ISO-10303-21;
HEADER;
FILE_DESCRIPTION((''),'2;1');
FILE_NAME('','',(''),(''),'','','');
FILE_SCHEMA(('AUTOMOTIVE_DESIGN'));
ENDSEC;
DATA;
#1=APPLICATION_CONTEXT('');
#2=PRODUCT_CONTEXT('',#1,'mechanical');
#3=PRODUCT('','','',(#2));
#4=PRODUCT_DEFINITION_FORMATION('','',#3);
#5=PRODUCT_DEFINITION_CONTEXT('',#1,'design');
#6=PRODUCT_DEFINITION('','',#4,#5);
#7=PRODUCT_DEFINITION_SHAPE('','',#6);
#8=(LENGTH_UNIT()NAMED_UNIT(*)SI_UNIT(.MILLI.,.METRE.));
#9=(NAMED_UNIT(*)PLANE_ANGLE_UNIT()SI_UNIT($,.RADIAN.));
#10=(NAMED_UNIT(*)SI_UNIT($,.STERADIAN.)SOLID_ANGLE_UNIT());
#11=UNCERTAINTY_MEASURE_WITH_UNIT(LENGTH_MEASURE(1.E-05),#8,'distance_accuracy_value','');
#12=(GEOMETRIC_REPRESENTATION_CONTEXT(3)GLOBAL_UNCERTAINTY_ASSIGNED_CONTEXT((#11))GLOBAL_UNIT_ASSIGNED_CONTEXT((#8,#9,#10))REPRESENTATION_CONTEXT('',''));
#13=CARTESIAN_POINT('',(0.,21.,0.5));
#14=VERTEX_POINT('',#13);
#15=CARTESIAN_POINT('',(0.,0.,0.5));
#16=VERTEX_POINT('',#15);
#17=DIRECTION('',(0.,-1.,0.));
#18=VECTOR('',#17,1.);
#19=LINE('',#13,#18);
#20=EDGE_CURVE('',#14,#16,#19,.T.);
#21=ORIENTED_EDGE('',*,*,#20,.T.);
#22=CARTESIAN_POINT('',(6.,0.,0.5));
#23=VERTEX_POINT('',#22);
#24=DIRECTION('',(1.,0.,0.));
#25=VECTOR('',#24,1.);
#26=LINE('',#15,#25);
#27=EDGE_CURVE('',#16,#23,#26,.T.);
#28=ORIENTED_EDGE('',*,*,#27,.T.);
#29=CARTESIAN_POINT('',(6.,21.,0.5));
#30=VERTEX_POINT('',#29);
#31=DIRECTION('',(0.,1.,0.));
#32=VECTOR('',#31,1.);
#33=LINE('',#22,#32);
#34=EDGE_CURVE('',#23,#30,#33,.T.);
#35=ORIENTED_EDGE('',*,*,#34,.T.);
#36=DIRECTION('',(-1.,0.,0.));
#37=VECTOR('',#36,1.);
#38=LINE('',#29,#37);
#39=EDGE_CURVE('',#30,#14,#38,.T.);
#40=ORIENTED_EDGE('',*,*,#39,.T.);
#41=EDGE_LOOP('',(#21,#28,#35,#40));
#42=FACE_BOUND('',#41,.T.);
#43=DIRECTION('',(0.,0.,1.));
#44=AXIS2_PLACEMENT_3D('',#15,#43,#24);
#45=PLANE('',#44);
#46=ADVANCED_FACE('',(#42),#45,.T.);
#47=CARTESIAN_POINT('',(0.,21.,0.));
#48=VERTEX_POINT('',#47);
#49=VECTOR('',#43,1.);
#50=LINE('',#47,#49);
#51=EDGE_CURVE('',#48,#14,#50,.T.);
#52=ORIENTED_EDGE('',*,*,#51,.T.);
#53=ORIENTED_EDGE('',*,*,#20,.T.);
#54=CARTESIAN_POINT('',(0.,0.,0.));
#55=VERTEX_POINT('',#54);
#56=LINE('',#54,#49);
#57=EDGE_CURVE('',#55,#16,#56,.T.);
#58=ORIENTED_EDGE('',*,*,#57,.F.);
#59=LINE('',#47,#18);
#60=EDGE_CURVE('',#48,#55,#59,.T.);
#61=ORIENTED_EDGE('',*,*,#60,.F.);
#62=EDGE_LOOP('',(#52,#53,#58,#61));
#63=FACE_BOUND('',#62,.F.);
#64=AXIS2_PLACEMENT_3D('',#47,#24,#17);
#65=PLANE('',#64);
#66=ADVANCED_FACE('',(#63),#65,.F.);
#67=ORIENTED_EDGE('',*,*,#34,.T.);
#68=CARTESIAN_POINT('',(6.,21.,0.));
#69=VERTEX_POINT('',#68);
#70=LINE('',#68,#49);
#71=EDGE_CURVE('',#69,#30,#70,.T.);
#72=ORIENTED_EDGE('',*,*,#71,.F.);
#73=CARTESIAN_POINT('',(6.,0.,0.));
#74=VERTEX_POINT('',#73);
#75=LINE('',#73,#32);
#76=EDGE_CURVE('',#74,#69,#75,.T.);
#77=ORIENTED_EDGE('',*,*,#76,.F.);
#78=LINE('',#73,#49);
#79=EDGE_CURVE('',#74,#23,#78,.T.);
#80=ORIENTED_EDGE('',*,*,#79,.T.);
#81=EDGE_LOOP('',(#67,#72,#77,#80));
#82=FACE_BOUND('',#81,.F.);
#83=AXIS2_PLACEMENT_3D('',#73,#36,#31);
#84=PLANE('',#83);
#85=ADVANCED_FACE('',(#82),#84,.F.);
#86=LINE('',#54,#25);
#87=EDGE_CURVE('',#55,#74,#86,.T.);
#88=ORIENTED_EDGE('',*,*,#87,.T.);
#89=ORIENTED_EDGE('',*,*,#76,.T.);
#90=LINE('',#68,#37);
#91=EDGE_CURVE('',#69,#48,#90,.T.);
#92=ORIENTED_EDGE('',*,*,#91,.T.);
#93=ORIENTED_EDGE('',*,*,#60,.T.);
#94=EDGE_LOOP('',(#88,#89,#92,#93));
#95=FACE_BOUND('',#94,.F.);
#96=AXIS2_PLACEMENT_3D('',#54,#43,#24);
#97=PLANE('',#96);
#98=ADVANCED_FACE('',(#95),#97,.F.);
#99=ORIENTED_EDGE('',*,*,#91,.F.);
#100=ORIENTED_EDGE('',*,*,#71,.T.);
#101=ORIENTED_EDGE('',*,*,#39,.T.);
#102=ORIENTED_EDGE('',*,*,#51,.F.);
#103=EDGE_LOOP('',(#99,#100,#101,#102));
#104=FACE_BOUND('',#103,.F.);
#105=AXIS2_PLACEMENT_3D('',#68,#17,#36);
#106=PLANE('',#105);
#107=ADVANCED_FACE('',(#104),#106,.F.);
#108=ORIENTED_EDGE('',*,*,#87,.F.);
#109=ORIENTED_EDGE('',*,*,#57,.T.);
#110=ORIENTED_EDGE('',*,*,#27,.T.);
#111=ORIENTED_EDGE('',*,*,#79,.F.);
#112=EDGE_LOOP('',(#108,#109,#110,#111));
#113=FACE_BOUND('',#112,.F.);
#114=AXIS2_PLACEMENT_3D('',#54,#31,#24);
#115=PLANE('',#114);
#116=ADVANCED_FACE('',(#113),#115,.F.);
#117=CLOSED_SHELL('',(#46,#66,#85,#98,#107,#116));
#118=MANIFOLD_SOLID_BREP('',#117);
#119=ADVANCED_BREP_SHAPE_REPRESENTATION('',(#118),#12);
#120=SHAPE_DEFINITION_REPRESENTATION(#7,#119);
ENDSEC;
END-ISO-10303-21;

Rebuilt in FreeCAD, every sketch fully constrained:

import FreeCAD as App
import Part
import Sketcher

doc = App.newDocument("Part")
body = doc.addObject("PartDesign::Body", "Body")

sketch1 = body.newObject("Sketcher::SketchObject", "Sketch")
sketch1.AttachmentSupport = (doc.getObject("XY_Plane"), [""])
sketch1.MapMode = "FlatFace"
sketch1.addGeometry([
    Part.LineSegment(App.Vector(0, 21, 0), App.Vector(0, 0, 0)),
    Part.LineSegment(App.Vector(0, 0, 0), App.Vector(6, 0, 0)),
    Part.LineSegment(App.Vector(6, 0, 0), App.Vector(6, 21, 0)),
    Part.LineSegment(App.Vector(6, 21, 0), App.Vector(0, 21, 0)),
], False)
sketch1.addConstraint([
    Sketcher.Constraint("Coincident", 0, 2, 1, 1),
    Sketcher.Constraint("Coincident", 1, 2, 2, 1),
    Sketcher.Constraint("Coincident", 2, 2, 3, 1),
    Sketcher.Constraint("Coincident", 3, 2, 0, 1),
    Sketcher.Constraint("Vertical", 0),
    Sketcher.Constraint("Horizontal", 1),
    Sketcher.Constraint("Vertical", 2),
    Sketcher.Constraint("Horizontal", 3),
    Sketcher.Constraint("Coincident", 0, 2, -1, 1),
    Sketcher.Constraint("DistanceX", 1, 1, 1, 2, 6.0),
    Sketcher.Constraint("DistanceY", 0, 2, 0, 1, 21.0),
])
pad1 = body.newObject("PartDesign::Pad", "Pad")
pad1.Profile = sketch1
pad1.Length = 0.5

doc.recompute()
